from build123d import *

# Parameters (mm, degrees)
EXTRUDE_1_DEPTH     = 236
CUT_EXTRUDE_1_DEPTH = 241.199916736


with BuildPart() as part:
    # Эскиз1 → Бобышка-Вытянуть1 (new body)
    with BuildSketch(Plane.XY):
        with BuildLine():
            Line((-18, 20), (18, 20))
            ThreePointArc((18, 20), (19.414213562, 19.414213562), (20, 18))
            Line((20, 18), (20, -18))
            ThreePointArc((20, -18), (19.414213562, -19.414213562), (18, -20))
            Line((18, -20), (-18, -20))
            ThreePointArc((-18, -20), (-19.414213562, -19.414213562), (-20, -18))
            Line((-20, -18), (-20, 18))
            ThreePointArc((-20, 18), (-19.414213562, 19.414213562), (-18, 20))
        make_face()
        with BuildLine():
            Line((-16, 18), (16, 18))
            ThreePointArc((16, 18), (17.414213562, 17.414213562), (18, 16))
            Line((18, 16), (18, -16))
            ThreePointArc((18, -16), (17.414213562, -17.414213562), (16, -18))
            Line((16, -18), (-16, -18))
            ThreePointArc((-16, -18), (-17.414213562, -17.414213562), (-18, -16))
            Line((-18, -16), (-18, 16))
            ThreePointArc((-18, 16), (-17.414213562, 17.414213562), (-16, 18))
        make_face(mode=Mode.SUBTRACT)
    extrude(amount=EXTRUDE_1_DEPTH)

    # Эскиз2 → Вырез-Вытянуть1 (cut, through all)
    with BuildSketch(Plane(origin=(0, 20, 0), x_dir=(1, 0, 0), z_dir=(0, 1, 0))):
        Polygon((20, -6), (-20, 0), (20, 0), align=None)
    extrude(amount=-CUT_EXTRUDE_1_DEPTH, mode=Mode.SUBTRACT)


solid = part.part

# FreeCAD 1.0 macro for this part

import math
import FreeCAD as App
import Part
import Sketcher

V = App.Vector
Q = App.Units.Quantity


def add_polygon(sketch, points):
    """Adds a closed chain of lines whose ends are joined by coincident constraints."""
    first, n = sketch.GeometryCount, len(points)
    for a, b in zip(points, points[1:] + points[:1]):
        sketch.addGeometry(Part.LineSegment(App.Vector(*a, 0), App.Vector(*b, 0)), False)
    for i in range(n):
        sketch.addConstraint(Sketcher.Constraint("Coincident", first + i, 2, first + (i + 1) % n, 1))

doc = App.newDocument("Part")
body = doc.addObject("PartDesign::Body", "Body")

sketch1 = body.newObject("Sketcher::SketchObject", "Sketch")
sketch1.AttachmentSupport = (doc.getObject("XY_Plane"), [""])
sketch1.MapMode = "FlatFace"
sketch1.addGeometry(Part.LineSegment(V(18, 20, 0), V(-18, 20, 0)), False)
sketch1.addGeometry(Part.ArcOfCircle(Part.Circle(V(-18, 18, 0), V(0, 0, 1), 2), math.radians(90), math.radians(180)), False)
sketch1.addGeometry(Part.LineSegment(V(-20, 18, 0), V(-20, -18, 0)), False)
sketch1.addGeometry(Part.ArcOfCircle(Part.Circle(V(-18, -18, 0), V(0, 0, 1), 2), math.radians(-180), math.radians(-90)), False)
sketch1.addGeometry(Part.LineSegment(V(-18, -20, 0), V(18, -20, 0)), False)
sketch1.addGeometry(Part.ArcOfCircle(Part.Circle(V(18, -18, 0), V(0, 0, 1), 2), math.radians(-90), math.radians(0)), False)
sketch1.addGeometry(Part.LineSegment(V(20, -18, 0), V(20, 18, 0)), False)
sketch1.addGeometry(Part.ArcOfCircle(Part.Circle(V(18, 18, 0), V(0, 0, 1), 2), math.radians(0), math.radians(90)), False)
sketch1.addGeometry(Part.LineSegment(V(-16, 18, 0), V(16, 18, 0)), False)
sketch1.addGeometry(Part.ArcOfCircle(Part.Circle(V(16, 16, 0), V(0, 0, 1), 2), math.radians(0), math.radians(90)), False)
sketch1.addGeometry(Part.LineSegment(V(18, 16, 0), V(18, -16, 0)), False)
sketch1.addGeometry(Part.ArcOfCircle(Part.Circle(V(16, -16, 0), V(0, 0, 1), 2), math.radians(-90), math.radians(0)), False)
sketch1.addGeometry(Part.LineSegment(V(16, -18, 0), V(-16, -18, 0)), False)
sketch1.addGeometry(Part.ArcOfCircle(Part.Circle(V(-16, -16, 0), V(0, 0, 1), 2), math.radians(-180), math.radians(-90)), False)
sketch1.addGeometry(Part.LineSegment(V(-18, -16, 0), V(-18, 16, 0)), False)
sketch1.addGeometry(Part.ArcOfCircle(Part.Circle(V(-16, 16, 0), V(0, 0, 1), 2), math.radians(90), math.radians(180)), False)
sketch1.addConstraint(Sketcher.Constraint("Tangent", 0, 2, 1, 1))
sketch1.addConstraint(Sketcher.Constraint("Tangent", 1, 2, 2, 1))
sketch1.addConstraint(Sketcher.Constraint("Tangent", 2, 2, 3, 1))
sketch1.addConstraint(Sketcher.Constraint("Tangent", 3, 2, 4, 1))
sketch1.addConstraint(Sketcher.Constraint("Tangent", 4, 2, 5, 1))
sketch1.addConstraint(Sketcher.Constraint("Tangent", 5, 2, 6, 1))
sketch1.addConstraint(Sketcher.Constraint("Tangent", 6, 2, 7, 1))
sketch1.addConstraint(Sketcher.Constraint("Tangent", 7, 2, 0, 1))
sketch1.addConstraint(Sketcher.Constraint("Tangent", 8, 2, 9, 2))
sketch1.addConstraint(Sketcher.Constraint("Tangent", 9, 1, 10, 1))
sketch1.addConstraint(Sketcher.Constraint("Tangent", 10, 2, 11, 2))
sketch1.addConstraint(Sketcher.Constraint("Tangent", 11, 1, 12, 1))
sketch1.addConstraint(Sketcher.Constraint("Tangent", 12, 2, 13, 2))
sketch1.addConstraint(Sketcher.Constraint("Tangent", 13, 1, 14, 1))
sketch1.addConstraint(Sketcher.Constraint("Tangent", 14, 2, 15, 2))
sketch1.addConstraint(Sketcher.Constraint("Tangent", 15, 1, 8, 1))
sketch1.addConstraint(Sketcher.Constraint("Horizontal", 0))
sketch1.addConstraint(Sketcher.Constraint("Vertical", 2))
sketch1.addConstraint(Sketcher.Constraint("Horizontal", 4))
sketch1.addConstraint(Sketcher.Constraint("Vertical", 6))
sketch1.addConstraint(Sketcher.Constraint("Horizontal", 8))
sketch1.addConstraint(Sketcher.Constraint("Vertical", 10))
sketch1.addConstraint(Sketcher.Constraint("Horizontal", 12))
sketch1.addConstraint(Sketcher.Constraint("Vertical", 14))
sketch1.addConstraint(Sketcher.Constraint("Equal", 1, 3))
sketch1.addConstraint(Sketcher.Constraint("Equal", 3, 5))
sketch1.addConstraint(Sketcher.Constraint("Equal", 5, 7))
sketch1.addConstraint(Sketcher.Constraint("Equal", 7, 9))
sketch1.addConstraint(Sketcher.Constraint("Equal", 9, 11))
sketch1.addConstraint(Sketcher.Constraint("Equal", 11, 13))
sketch1.addConstraint(Sketcher.Constraint("Equal", 13, 15))
sketch1.addConstraint(Sketcher.Constraint("Symmetric", 1, 3, 5, 3, -1, 1))
sketch1.addConstraint(Sketcher.Constraint("Symmetric", 9, 3, 13, 3, -1, 1))
sketch1.addConstraint(Sketcher.Constraint("Horizontal", 6, 2, 8, 2))
sketch1.addConstraint(Sketcher.Constraint("Vertical", 7, 2, 9, 1))
sketch1.addConstraint(Sketcher.Constraint("Equal", 4, 2))
sketch1.addConstraint(Sketcher.Constraint("Radius", 1, Q("2 mm")))
sketch1.addConstraint(Sketcher.Constraint("DistanceX", 0, 2, 0, 1, Q("36 mm")))
pad1 = body.newObject("PartDesign::Pad", "Pad")
pad1.Profile = sketch1
pad1.Length = 236

sketch2 = body.newObject("Sketcher::SketchObject", "Sketch001")
sketch2.AttachmentSupport = (doc.getObject("XZ_Plane"), [""])
sketch2.MapMode = "FlatFace"
sketch2.AttachmentOffset = App.Placement(V(0, 0, -20), App.Rotation())
add_polygon(sketch2, [(-20, 0), (20, 6), (20, 0)])
sketch2.addConstraint(Sketcher.Constraint("Vertical", 1))
sketch2.addConstraint(Sketcher.Constraint("Horizontal", 2))
sketch2.addConstraint(Sketcher.Constraint("Symmetric", 1, 2, 2, 2, -1, 1))
sketch2.addConstraint(Sketcher.Constraint("DistanceX", 2, 2, 2, 1, Q("40 mm")))
sketch2.addConstraint(Sketcher.Constraint("DistanceY", 1, 2, 1, 1, Q("6 mm")))
pocket1 = body.newObject("PartDesign::Pocket", "Pocket")
pocket1.Profile = sketch2
pocket1.Type = "ThroughAll"
pocket1.Reversed = True

doc.recompute()
